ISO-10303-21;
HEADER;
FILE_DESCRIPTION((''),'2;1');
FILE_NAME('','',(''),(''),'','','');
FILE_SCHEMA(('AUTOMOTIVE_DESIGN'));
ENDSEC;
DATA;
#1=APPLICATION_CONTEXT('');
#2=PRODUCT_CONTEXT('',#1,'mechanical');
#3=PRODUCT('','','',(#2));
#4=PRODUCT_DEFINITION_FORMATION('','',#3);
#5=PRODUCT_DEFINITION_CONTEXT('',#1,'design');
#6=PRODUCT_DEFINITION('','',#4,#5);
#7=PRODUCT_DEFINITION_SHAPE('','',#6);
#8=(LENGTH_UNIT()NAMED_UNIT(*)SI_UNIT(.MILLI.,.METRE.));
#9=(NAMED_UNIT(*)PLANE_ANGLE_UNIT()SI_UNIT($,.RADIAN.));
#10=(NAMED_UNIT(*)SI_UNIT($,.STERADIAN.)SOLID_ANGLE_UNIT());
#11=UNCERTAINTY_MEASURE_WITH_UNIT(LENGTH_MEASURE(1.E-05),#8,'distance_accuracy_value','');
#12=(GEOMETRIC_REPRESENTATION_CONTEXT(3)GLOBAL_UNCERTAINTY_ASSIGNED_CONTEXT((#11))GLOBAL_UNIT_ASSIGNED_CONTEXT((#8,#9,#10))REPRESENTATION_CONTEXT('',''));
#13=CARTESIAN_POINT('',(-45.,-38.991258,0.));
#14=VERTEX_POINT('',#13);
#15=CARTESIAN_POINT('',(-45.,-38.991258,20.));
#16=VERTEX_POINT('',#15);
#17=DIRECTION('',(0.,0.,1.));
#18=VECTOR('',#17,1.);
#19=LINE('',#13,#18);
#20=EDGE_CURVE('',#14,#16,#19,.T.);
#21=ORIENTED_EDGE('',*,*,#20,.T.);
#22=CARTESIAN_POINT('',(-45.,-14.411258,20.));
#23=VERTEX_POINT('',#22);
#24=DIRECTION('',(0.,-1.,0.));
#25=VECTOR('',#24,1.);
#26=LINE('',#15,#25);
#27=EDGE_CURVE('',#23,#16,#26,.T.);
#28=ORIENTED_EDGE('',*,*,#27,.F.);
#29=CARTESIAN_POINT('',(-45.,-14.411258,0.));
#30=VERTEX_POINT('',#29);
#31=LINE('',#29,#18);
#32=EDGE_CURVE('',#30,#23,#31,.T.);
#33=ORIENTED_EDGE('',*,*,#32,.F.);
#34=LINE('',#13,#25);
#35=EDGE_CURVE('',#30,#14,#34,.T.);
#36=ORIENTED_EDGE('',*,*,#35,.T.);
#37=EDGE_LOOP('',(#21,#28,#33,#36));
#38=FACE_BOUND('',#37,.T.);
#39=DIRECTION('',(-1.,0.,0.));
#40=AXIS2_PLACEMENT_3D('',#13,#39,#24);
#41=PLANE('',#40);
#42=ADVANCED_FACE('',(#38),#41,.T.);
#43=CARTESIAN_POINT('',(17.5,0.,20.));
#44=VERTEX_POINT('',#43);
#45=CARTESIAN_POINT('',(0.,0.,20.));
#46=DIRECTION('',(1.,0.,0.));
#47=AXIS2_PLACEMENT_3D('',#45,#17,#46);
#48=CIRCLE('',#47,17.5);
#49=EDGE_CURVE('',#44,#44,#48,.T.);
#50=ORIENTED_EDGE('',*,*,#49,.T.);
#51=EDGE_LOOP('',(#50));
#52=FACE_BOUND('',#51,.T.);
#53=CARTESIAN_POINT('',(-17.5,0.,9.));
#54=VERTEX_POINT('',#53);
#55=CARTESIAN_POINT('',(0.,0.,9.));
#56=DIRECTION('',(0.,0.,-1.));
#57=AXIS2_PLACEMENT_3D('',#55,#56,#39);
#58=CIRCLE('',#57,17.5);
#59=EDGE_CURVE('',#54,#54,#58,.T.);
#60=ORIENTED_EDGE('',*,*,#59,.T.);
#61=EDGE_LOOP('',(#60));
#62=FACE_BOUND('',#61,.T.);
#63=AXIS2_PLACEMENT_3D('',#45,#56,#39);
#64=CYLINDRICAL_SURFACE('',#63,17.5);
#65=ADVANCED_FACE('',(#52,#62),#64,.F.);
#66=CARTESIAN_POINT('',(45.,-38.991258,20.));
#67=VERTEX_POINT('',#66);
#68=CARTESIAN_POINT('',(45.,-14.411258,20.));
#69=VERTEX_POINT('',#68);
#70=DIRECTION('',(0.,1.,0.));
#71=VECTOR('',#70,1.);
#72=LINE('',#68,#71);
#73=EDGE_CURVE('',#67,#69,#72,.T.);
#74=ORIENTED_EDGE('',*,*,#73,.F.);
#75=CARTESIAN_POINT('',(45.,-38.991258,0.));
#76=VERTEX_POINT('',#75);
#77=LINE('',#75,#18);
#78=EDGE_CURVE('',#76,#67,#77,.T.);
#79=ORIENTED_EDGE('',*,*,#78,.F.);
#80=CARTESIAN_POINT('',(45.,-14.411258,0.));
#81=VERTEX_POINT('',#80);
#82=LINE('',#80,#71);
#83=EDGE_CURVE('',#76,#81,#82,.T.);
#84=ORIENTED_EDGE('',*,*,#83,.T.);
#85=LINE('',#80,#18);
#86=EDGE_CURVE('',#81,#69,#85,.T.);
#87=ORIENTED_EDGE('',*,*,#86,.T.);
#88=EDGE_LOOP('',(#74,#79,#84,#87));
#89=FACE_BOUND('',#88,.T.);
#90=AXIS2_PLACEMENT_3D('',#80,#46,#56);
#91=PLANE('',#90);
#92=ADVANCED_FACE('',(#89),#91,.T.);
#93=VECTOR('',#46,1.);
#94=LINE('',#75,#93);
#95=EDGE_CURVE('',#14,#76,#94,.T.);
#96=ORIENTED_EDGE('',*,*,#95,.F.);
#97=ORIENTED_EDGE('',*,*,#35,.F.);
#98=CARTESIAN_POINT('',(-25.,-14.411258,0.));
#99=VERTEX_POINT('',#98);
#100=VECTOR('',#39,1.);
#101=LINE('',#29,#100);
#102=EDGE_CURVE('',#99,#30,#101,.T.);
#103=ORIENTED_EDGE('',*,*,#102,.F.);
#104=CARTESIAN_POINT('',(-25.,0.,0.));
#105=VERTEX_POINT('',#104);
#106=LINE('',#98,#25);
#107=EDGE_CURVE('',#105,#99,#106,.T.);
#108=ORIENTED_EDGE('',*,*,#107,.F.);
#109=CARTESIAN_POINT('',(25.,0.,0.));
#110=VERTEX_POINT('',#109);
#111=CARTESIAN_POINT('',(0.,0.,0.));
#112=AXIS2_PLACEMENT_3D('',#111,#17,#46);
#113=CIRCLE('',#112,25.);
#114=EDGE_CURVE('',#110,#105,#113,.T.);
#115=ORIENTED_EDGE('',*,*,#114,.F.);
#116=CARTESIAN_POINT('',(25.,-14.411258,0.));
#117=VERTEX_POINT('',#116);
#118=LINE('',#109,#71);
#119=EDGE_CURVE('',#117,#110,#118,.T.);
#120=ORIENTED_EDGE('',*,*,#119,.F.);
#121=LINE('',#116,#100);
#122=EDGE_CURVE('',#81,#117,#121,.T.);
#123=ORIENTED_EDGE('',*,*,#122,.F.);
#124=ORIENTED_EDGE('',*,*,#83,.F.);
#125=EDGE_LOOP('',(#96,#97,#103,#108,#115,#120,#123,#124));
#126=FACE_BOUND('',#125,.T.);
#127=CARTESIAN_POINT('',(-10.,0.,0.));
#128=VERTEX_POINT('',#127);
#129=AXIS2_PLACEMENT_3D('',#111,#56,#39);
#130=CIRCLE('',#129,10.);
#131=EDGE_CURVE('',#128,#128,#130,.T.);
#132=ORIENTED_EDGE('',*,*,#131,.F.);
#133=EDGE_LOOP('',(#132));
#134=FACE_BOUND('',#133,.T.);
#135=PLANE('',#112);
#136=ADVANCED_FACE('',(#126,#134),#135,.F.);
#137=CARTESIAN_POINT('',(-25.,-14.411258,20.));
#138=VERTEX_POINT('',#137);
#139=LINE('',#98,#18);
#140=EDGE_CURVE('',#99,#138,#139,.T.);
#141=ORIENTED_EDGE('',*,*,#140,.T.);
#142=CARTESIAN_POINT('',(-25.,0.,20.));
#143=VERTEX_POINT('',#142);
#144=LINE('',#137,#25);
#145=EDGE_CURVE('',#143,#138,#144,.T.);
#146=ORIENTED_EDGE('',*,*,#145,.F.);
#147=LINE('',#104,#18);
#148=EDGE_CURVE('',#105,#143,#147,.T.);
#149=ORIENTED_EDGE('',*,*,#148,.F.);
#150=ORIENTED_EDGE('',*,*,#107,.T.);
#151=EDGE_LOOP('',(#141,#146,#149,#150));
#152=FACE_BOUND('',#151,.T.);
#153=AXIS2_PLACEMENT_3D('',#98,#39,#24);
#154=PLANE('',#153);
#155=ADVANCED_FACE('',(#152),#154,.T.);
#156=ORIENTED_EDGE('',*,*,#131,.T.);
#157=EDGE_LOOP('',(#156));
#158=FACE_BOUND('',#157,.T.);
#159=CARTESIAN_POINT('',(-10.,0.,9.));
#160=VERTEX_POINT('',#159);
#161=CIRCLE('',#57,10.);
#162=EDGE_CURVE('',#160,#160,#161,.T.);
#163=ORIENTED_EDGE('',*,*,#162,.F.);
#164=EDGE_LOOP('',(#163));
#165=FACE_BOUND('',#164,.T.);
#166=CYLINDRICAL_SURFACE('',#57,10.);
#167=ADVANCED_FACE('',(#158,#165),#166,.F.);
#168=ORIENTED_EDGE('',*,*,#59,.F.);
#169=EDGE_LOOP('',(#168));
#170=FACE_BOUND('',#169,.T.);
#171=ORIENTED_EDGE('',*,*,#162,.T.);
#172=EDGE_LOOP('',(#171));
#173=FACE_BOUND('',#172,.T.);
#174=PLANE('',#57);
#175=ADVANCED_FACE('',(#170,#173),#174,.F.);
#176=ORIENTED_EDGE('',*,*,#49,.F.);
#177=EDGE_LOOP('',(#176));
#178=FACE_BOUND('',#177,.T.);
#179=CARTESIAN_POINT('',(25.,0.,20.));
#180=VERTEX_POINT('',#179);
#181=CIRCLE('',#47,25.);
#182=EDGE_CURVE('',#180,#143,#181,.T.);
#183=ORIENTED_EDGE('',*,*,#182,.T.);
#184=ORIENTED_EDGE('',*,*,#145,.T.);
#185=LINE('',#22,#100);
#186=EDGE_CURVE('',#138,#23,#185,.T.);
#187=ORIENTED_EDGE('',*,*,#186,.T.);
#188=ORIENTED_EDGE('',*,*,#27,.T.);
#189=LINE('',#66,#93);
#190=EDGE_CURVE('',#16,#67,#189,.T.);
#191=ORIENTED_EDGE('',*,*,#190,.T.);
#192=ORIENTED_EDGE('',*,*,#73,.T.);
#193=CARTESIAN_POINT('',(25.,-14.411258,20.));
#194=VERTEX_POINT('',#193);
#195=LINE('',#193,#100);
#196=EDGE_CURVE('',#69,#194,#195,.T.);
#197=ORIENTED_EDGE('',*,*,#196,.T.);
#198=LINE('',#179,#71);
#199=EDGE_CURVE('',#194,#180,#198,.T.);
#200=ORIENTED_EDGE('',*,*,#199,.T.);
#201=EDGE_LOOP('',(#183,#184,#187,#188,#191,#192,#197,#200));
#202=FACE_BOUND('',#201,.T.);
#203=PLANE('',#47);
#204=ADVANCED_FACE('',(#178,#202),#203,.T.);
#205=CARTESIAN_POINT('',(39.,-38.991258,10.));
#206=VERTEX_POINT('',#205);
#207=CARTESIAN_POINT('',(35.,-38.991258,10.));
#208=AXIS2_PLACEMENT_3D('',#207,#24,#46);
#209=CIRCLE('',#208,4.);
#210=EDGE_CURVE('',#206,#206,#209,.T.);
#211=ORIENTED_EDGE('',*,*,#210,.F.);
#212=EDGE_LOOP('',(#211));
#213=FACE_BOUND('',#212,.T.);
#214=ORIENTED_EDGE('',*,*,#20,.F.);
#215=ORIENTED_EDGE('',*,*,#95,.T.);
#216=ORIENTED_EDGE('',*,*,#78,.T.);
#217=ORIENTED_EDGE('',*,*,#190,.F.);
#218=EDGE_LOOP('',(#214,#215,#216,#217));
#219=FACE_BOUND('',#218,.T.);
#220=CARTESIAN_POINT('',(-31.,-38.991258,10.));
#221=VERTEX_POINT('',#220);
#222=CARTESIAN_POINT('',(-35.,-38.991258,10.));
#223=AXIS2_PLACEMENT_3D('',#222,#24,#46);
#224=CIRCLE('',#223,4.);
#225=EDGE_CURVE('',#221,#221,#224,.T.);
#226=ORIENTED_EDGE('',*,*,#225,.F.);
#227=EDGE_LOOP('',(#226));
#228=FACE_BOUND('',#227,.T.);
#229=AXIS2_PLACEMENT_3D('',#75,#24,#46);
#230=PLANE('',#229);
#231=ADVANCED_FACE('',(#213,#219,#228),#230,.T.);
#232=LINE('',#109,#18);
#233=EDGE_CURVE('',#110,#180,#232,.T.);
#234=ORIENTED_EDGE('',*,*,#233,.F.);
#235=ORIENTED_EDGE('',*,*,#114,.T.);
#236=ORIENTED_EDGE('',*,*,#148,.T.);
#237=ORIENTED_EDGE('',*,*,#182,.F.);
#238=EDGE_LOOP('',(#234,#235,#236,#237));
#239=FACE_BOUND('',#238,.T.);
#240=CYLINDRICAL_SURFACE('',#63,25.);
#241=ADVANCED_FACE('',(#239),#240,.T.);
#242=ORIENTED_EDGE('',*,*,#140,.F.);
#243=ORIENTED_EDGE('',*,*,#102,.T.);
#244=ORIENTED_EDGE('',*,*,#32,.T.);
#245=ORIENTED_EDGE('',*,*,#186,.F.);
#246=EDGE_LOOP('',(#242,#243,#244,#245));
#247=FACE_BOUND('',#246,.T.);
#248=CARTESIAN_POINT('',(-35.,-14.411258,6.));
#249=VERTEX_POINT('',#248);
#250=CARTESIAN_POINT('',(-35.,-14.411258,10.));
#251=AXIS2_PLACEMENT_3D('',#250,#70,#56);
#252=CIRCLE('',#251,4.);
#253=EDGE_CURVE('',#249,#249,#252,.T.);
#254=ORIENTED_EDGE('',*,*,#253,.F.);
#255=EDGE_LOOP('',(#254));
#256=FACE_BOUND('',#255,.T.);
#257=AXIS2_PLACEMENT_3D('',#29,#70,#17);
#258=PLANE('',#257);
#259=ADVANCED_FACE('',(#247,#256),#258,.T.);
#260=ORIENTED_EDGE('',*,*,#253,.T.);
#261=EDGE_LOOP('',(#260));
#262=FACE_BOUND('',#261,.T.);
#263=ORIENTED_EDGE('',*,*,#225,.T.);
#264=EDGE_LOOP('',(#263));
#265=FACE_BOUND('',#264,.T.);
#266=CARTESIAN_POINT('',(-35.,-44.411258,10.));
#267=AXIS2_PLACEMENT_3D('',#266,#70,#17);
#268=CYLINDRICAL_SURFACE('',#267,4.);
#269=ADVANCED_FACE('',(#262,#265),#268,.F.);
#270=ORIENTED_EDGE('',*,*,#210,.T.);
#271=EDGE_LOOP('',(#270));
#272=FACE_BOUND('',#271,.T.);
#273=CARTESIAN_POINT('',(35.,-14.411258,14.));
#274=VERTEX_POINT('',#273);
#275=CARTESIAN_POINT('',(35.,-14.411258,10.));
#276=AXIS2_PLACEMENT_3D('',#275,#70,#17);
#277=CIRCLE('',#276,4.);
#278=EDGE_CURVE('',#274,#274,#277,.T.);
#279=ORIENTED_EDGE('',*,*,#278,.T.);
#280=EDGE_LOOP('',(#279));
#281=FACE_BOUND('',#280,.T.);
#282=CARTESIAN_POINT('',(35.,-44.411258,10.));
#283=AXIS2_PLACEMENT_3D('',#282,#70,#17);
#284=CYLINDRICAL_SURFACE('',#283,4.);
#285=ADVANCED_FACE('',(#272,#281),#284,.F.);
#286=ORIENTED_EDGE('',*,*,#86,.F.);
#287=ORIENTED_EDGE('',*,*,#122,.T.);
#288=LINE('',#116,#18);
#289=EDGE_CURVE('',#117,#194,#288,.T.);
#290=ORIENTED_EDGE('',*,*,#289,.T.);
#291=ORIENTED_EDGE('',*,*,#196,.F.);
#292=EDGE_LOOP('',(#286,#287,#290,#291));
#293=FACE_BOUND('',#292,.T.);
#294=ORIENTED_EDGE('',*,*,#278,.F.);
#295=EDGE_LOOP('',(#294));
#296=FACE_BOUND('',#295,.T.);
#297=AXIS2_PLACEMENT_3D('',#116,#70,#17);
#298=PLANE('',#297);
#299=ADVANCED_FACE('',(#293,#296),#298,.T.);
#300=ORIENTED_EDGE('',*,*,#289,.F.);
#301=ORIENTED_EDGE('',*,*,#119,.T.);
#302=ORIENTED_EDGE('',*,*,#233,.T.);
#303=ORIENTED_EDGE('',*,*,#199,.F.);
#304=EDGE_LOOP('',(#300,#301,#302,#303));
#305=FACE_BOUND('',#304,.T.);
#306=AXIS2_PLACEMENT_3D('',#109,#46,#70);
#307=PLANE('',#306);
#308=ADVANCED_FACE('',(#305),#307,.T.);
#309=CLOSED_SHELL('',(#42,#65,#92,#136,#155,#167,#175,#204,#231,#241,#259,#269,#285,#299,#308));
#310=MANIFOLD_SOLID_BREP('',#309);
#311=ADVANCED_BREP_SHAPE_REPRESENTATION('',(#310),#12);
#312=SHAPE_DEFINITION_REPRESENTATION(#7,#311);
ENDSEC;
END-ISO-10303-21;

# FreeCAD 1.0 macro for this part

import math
import FreeCAD as App
import Part
import Sketcher

V = App.Vector
Q = App.Units.Quantity

doc = App.newDocument("Part")
body = doc.addObject("PartDesign::Body", "Body")

sketch1 = body.newObject("Sketcher::SketchObject", "Sketch")
sketch1.AttachmentSupport = (doc.getObject("XY_Plane"), [""])
sketch1.MapMode = "FlatFace"
sketch1.addGeometry(Part.Circle(V(0, 0, 0), V(0, 0, 1), 25), False)
sketch1.addGeometry(Part.Circle(V(0, 0, 0), V(0, 0, 1), 18), False)
sketch1.addConstraint(Sketcher.Constraint("Coincident", 0, 3, -1, 1))
sketch1.addConstraint(Sketcher.Constraint("Coincident", 1, 3, -1, 1))
sketch1.addConstraint(Sketcher.Constraint("Diameter", 0, Q("50 mm")))
sketch1.addConstraint(Sketcher.Constraint("Diameter", 1, Q("35 mm")))
pad1 = body.newObject("PartDesign::Pad", "Pad")
pad1.Profile = sketch1
pad1.Length = 20

sketch2 = body.newObject("Sketcher::SketchObject", "Sketch001")
sketch2.AttachmentSupport = (doc.getObject("XY_Plane"), [""])
sketch2.MapMode = "FlatFace"
sketch2.addGeometry(Part.LineSegment(V(25, -14, 0), V(25, 0, 0)), False)
sketch2.addGeometry(Part.ArcOfCircle(Part.Circle(V(0, 0, 0), V(0, 0, 1), 25), math.radians(180), math.radians(360)), False)
sketch2.addGeometry(Part.LineSegment(V(-25, 0, 0), V(-25, -14, 0)), False)
sketch2.addGeometry(Part.LineSegment(V(-25, -14, 0), V(-45, -14, 0)), False)
sketch2.addGeometry(Part.LineSegment(V(-45, -14, 0), V(-45, -39, 0)), False)
sketch2.addGeometry(Part.LineSegment(V(-45, -39, 0), V(45, -39, 0)), False)
sketch2.addGeometry(Part.LineSegment(V(45, -39, 0), V(45, -14, 0)), False)
sketch2.addGeometry(Part.LineSegment(V(45, -14, 0), V(25, -14, 0)), False)
sketch2.addConstraint(Sketcher.Constraint("Tangent", 0, 2, 1, 2))
sketch2.addConstraint(Sketcher.Constraint("Tangent", 1, 1, 2, 1))
sketch2.addConstraint(Sketcher.Constraint("Coincident", 2, 2, 3, 1))
sketch2.addConstraint(Sketcher.Constraint("Coincident", 3, 2, 4, 1))
sketch2.addConstraint(Sketcher.Constraint("Coincident", 4, 2, 5, 1))
sketch2.addConstraint(Sketcher.Constraint("Coincident", 5, 2, 6, 1))
sketch2.addConstraint(Sketcher.Constraint("Coincident", 6, 2, 7, 1))
sketch2.addConstraint(Sketcher.Constraint("Coincident", 7, 2, 0, 1))
sketch2.addConstraint(Sketcher.Constraint("Vertical", 0))
sketch2.addConstraint(Sketcher.Constraint("Vertical", 2))
sketch2.addConstraint(Sketcher.Constraint("Horizontal", 3))
sketch2.addConstraint(Sketcher.Constraint("Vertical", 4))
sketch2.addConstraint(Sketcher.Constraint("Horizontal", 5))
sketch2.addConstraint(Sketcher.Constraint("Vertical", 6))
sketch2.addConstraint(Sketcher.Constraint("Horizontal", 7))
sketch2.addConstraint(Sketcher.Constraint("Coincident", 1, 3, -1, 1))
sketch2.addConstraint(Sketcher.Constraint("Symmetric", 3, 2, 6, 2, -2))
sketch2.addConstraint(Sketcher.Constraint("Radius", 1, Q("25 mm")))
sketch2.addConstraint(Sketcher.Constraint("DistanceX", 3, 2, 3, 1, Q("20 mm")))
sketch2.addConstraint(Sketcher.Constraint("DistanceY", 4, 2, 4, 1, Q("24.58 mm")))
sketch2.addConstraint(Sketcher.Constraint("DistanceY", 0, 1, 0, 2, Q("14.411258 mm")))
pad2 = body.newObject("PartDesign::Pad", "Pad001")
pad2.Profile = sketch2
pad2.Length = 20

sketch3 = body.newObject("Sketcher::SketchObject", "Sketch002")
sketch3.AttachmentSupport = (doc.getObject("XY_Plane"), [""])
sketch3.MapMode = "FlatFace"
sketch3.addGeometry(Part.Circle(V(0, 0, 0), V(0, 0, 1), 20), False)
sketch3.addGeometry(Part.Circle(V(0, 0, 0), V(0, 0, 1), 10), False)
sketch3.addConstraint(Sketcher.Constraint("Coincident", 0, 3, -1, 1))
sketch3.addConstraint(Sketcher.Constraint("Coincident", 1, 3, -1, 1))
sketch3.addConstraint(Sketcher.Constraint("Diameter", 0, Q("40 mm")))
sketch3.addConstraint(Sketcher.Constraint("Diameter", 1, Q("20 mm")))
pad3 = body.newObject("PartDesign::Pad", "Pad002")
pad3.Profile = sketch3
pad3.Length = 9

sketch4 = body.newObject("Sketcher::SketchObject", "Sketch003")
sketch4.AttachmentSupport = (doc.getObject("XZ_Plane"), [""])
sketch4.MapMode = "FlatFace"
sketch4.AttachmentOffset = App.Placement(V(0, 0, 14.411258), App.Rotation())
sketch4.addGeometry(Part.Circle(V(35, 10, 0), V(0, 0, 1), 4), False)
sketch4.addGeometry(Part.Circle(V(-35, 10, 0), V(0, 0, 1), 4), False)
sketch4.addConstraint(Sketcher.Constraint("Equal", 0, 1))
sketch4.addConstraint(Sketcher.Constraint("Symmetric", 0, 3, 1, 3, -2))
sketch4.addConstraint(Sketcher.Constraint("Diameter", 0, Q("8 mm")))
sketch4.addConstraint(Sketcher.Constraint("DistanceX", -1, 1, 0, 3, Q("35 mm")))
sketch4.addConstraint(Sketcher.Constraint("DistanceY", -1, 1, 0, 3, Q("10 mm")))
pocket1 = body.newObject("PartDesign::Pocket", "Pocket")
pocket1.Profile = sketch4
pocket1.Length = 30
pocket1.Reversed = True

doc.recompute()
